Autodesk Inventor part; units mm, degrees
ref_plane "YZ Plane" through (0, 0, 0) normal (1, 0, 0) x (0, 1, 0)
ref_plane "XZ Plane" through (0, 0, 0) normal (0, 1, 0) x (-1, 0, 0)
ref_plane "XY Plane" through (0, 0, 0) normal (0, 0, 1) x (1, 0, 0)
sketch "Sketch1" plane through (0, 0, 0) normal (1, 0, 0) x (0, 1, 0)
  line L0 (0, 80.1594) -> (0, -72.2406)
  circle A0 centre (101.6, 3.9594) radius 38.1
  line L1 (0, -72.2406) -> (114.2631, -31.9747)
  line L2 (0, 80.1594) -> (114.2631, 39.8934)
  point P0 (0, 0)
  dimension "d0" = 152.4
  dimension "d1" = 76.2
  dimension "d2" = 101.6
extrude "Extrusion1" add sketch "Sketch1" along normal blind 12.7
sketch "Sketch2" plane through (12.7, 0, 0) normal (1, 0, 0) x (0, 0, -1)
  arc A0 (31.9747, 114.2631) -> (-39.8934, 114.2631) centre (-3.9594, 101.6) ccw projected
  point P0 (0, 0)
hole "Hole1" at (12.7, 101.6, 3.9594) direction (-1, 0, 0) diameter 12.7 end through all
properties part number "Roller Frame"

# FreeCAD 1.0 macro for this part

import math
import FreeCAD as App
import Part
import Sketcher

V = App.Vector
Q = App.Units.Quantity

doc = App.newDocument("Part")
body = doc.addObject("PartDesign::Body", "Body")

# Sketch on YZ plane
sketch1 = body.newObject("Sketcher::SketchObject", "Sketch")
sketch1.AttachmentSupport = (doc.getObject("YZ_Plane"), [""])
sketch1.MapMode = "FlatFace"
sketch1.addGeometry(Part.LineSegment(V(114, 40, 0), V(0, 80, 0)), False)
sketch1.addGeometry(Part.LineSegment(V(0, 80, 0), V(0, -72, 0)), False)
sketch1.addGeometry(Part.LineSegment(V(0, -72, 0), V(114, -32, 0)), False)
sketch1.addGeometry(Part.ArcOfCircle(Part.Circle(V(102, 4, 0), V(0, 0, 1), 38), math.radians(-71), math.radians(71)), False)
sketch1.addConstraint(Sketcher.Constraint("Coincident", 0, 2, 1, 1))
sketch1.addConstraint(Sketcher.Constraint("Coincident", 1, 2, 2, 1))
sketch1.addConstraint(Sketcher.Constraint("Tangent", 2, 2, 3, 1))
sketch1.addConstraint(Sketcher.Constraint("Tangent", 3, 2, 0, 1))
sketch1.addConstraint(Sketcher.Constraint("Vertical", 1))
sketch1.addConstraint(Sketcher.Constraint("PointOnObject", 0, 2, -2))
sketch1.addConstraint(Sketcher.Constraint("Vertical", 2, 2, 3, 2))
sketch1.addConstraint(Sketcher.Constraint("Radius", 3, Q("1.5 in")))
sketch1.addConstraint(Sketcher.Constraint("DistanceY", 1, 2, 1, 1, Q("6 in")))
sketch1.addConstraint(Sketcher.Constraint("DistanceX", -1, 1, 3, 3, Q("4 in")))
sketch1.addConstraint(Sketcher.Constraint("DistanceY", -1, 1, 3, 2, Q("1.5706 in")))
pad1 = body.newObject("PartDesign::Pad", "Pad")
pad1.Profile = sketch1
pad1.Length = Q("0.5 in")

# Sketch on YZ plane
sketch2 = body.newObject("Sketcher::SketchObject", "Sketch001")
sketch2.AttachmentSupport = (doc.getObject("YZ_Plane"), [""])
sketch2.MapMode = "FlatFace"
sketch2.AttachmentOffset = App.Placement(V(0, 0, 0.5 * 25.4), App.Rotation())
sketch2.addGeometry(Part.Circle(V(102, 4, 0), V(0, 0, 1), 6), False)
sketch2.addConstraint(Sketcher.Constraint("Diameter", 0, Q("0.5 in")))
sketch2.addConstraint(Sketcher.Constraint("DistanceX", -1, 1, 0, 3, Q("4 in")))
sketch2.addConstraint(Sketcher.Constraint("DistanceY", -1, 1, 0, 3, 3.9594))
doc.recompute()
hole = body.newObject("PartDesign::Hole", "Hole")
hole.Profile = sketch2
hole.ThreadType = "None"
hole.Diameter = Q("0.5 in")
hole.DepthType = "ThroughAll"

doc.recompute()
